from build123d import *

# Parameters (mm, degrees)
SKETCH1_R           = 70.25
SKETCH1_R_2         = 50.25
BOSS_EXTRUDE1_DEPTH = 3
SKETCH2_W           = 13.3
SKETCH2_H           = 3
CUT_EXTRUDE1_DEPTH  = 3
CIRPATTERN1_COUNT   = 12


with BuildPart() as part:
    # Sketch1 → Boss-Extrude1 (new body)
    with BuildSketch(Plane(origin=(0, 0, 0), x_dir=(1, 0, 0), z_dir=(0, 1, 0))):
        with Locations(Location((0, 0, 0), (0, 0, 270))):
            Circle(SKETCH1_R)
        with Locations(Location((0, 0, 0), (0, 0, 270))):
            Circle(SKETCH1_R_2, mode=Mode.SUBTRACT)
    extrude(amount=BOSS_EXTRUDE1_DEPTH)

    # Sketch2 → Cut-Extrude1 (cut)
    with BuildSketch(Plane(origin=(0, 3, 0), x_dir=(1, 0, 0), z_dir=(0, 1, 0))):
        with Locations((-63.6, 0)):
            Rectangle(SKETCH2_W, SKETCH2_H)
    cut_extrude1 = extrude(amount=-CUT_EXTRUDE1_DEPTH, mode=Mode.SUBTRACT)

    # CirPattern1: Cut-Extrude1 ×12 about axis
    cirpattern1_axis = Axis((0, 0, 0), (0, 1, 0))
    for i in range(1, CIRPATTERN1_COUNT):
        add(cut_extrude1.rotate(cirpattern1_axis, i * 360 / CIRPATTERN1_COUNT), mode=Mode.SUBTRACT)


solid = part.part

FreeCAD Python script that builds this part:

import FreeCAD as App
import Part
import Sketcher
from FreeCAD import Vector
Q = App.Units.Quantity

doc = App.newDocument("Part")
body = doc.addObject("PartDesign::Body", "Body")

# Sketch on XZ plane
sketch1 = body.newObject("Sketcher::SketchObject", "Sketch")
sketch1.AttachmentSupport = (doc.getObject("XZ_Plane"), [""])
sketch1.MapMode = "FlatFace"
sketch1.addGeometry(Part.Circle(Vector(0, 0, 0), Vector(0, 0, 1), 70.25), False)
sketch1.addGeometry(Part.Circle(Vector(0, 0, 0), Vector(0, 0, 1), 50.25), False)
sketch1.addConstraint(Sketcher.Constraint("Coincident", 0, 3, -1, 1))
sketch1.addConstraint(Sketcher.Constraint("Coincident", 1, 3, -1, 1))
sketch1.addConstraint(Sketcher.Constraint("Diameter", 0, Q("140.5 mm")))
sketch1.addConstraint(Sketcher.Constraint("Diameter", 1, Q("100.5 mm")))
pad1 = body.newObject("PartDesign::Pad", "Pad")
pad1.Profile = sketch1
pad1.Length = 3
pad1.Reversed = True

# Sketch on XZ plane
sketch2 = body.newObject("Sketcher::SketchObject", "Sketch001")
sketch2.AttachmentSupport = (doc.getObject("XZ_Plane"), [""])
sketch2.MapMode = "FlatFace"
sketch2.AttachmentOffset = App.Placement(Vector(0, 0, -3), App.Rotation())
sketch2.addGeometry(Part.LineSegment(Vector(-70.25, -1.5, 0), Vector(-70.25, 1.5, 0)), False)
sketch2.addGeometry(Part.LineSegment(Vector(-70.25, 1.5, 0), Vector(-56.95, 1.5, 0)), False)
sketch2.addGeometry(Part.LineSegment(Vector(-56.95, 1.5, 0), Vector(-56.95, -1.5, 0)), False)
sketch2.addGeometry(Part.LineSegment(Vector(-56.95, -1.5, 0), Vector(-70.25, -1.5, 0)), False)
sketch2.addConstraint(Sketcher.Constraint("Coincident", 0, 2, 1, 1))
sketch2.addConstraint(Sketcher.Constraint("Coincident", 1, 2, 2, 1))
sketch2.addConstraint(Sketcher.Constraint("Coincident", 2, 2, 3, 1))
sketch2.addConstraint(Sketcher.Constraint("Coincident", 3, 2, 0, 1))
sketch2.addConstraint(Sketcher.Constraint("Vertical", 0))
sketch2.addConstraint(Sketcher.Constraint("Horizontal", 1))
sketch2.addConstraint(Sketcher.Constraint("Vertical", 2))
sketch2.addConstraint(Sketcher.Constraint("Horizontal", 3))
sketch2.addConstraint(Sketcher.Constraint("DistanceY", 0, 1, 0, 2, Q("3 mm")))
sketch2.addConstraint(Sketcher.Constraint("DistanceX", 1, 1, 1, 2, Q("13.3 mm")))
sketch2.addConstraint(Sketcher.Constraint("DistanceY", -1, 1, 0, 2, Q("1.5 mm")))
sketch2.addConstraint(Sketcher.Constraint("DistanceX", 0, 2, -1, 1, Q("70.25 mm")))
pocket1 = body.newObject("PartDesign::Pocket", "Pocket")
pocket1.Profile = sketch2
pocket1.Length = 3
pocket1.Reversed = True
doc.recompute()

polarpattern = body.newObject("PartDesign::PolarPattern", "PolarPattern")
polarpattern.Originals = [pocket1]
polarpattern.Axis = (doc.getObject("Y_Axis"), [""])
polarpattern.Angle = 360
polarpattern.Occurrences = 12
body.Tip = polarpattern

doc.recompute()
